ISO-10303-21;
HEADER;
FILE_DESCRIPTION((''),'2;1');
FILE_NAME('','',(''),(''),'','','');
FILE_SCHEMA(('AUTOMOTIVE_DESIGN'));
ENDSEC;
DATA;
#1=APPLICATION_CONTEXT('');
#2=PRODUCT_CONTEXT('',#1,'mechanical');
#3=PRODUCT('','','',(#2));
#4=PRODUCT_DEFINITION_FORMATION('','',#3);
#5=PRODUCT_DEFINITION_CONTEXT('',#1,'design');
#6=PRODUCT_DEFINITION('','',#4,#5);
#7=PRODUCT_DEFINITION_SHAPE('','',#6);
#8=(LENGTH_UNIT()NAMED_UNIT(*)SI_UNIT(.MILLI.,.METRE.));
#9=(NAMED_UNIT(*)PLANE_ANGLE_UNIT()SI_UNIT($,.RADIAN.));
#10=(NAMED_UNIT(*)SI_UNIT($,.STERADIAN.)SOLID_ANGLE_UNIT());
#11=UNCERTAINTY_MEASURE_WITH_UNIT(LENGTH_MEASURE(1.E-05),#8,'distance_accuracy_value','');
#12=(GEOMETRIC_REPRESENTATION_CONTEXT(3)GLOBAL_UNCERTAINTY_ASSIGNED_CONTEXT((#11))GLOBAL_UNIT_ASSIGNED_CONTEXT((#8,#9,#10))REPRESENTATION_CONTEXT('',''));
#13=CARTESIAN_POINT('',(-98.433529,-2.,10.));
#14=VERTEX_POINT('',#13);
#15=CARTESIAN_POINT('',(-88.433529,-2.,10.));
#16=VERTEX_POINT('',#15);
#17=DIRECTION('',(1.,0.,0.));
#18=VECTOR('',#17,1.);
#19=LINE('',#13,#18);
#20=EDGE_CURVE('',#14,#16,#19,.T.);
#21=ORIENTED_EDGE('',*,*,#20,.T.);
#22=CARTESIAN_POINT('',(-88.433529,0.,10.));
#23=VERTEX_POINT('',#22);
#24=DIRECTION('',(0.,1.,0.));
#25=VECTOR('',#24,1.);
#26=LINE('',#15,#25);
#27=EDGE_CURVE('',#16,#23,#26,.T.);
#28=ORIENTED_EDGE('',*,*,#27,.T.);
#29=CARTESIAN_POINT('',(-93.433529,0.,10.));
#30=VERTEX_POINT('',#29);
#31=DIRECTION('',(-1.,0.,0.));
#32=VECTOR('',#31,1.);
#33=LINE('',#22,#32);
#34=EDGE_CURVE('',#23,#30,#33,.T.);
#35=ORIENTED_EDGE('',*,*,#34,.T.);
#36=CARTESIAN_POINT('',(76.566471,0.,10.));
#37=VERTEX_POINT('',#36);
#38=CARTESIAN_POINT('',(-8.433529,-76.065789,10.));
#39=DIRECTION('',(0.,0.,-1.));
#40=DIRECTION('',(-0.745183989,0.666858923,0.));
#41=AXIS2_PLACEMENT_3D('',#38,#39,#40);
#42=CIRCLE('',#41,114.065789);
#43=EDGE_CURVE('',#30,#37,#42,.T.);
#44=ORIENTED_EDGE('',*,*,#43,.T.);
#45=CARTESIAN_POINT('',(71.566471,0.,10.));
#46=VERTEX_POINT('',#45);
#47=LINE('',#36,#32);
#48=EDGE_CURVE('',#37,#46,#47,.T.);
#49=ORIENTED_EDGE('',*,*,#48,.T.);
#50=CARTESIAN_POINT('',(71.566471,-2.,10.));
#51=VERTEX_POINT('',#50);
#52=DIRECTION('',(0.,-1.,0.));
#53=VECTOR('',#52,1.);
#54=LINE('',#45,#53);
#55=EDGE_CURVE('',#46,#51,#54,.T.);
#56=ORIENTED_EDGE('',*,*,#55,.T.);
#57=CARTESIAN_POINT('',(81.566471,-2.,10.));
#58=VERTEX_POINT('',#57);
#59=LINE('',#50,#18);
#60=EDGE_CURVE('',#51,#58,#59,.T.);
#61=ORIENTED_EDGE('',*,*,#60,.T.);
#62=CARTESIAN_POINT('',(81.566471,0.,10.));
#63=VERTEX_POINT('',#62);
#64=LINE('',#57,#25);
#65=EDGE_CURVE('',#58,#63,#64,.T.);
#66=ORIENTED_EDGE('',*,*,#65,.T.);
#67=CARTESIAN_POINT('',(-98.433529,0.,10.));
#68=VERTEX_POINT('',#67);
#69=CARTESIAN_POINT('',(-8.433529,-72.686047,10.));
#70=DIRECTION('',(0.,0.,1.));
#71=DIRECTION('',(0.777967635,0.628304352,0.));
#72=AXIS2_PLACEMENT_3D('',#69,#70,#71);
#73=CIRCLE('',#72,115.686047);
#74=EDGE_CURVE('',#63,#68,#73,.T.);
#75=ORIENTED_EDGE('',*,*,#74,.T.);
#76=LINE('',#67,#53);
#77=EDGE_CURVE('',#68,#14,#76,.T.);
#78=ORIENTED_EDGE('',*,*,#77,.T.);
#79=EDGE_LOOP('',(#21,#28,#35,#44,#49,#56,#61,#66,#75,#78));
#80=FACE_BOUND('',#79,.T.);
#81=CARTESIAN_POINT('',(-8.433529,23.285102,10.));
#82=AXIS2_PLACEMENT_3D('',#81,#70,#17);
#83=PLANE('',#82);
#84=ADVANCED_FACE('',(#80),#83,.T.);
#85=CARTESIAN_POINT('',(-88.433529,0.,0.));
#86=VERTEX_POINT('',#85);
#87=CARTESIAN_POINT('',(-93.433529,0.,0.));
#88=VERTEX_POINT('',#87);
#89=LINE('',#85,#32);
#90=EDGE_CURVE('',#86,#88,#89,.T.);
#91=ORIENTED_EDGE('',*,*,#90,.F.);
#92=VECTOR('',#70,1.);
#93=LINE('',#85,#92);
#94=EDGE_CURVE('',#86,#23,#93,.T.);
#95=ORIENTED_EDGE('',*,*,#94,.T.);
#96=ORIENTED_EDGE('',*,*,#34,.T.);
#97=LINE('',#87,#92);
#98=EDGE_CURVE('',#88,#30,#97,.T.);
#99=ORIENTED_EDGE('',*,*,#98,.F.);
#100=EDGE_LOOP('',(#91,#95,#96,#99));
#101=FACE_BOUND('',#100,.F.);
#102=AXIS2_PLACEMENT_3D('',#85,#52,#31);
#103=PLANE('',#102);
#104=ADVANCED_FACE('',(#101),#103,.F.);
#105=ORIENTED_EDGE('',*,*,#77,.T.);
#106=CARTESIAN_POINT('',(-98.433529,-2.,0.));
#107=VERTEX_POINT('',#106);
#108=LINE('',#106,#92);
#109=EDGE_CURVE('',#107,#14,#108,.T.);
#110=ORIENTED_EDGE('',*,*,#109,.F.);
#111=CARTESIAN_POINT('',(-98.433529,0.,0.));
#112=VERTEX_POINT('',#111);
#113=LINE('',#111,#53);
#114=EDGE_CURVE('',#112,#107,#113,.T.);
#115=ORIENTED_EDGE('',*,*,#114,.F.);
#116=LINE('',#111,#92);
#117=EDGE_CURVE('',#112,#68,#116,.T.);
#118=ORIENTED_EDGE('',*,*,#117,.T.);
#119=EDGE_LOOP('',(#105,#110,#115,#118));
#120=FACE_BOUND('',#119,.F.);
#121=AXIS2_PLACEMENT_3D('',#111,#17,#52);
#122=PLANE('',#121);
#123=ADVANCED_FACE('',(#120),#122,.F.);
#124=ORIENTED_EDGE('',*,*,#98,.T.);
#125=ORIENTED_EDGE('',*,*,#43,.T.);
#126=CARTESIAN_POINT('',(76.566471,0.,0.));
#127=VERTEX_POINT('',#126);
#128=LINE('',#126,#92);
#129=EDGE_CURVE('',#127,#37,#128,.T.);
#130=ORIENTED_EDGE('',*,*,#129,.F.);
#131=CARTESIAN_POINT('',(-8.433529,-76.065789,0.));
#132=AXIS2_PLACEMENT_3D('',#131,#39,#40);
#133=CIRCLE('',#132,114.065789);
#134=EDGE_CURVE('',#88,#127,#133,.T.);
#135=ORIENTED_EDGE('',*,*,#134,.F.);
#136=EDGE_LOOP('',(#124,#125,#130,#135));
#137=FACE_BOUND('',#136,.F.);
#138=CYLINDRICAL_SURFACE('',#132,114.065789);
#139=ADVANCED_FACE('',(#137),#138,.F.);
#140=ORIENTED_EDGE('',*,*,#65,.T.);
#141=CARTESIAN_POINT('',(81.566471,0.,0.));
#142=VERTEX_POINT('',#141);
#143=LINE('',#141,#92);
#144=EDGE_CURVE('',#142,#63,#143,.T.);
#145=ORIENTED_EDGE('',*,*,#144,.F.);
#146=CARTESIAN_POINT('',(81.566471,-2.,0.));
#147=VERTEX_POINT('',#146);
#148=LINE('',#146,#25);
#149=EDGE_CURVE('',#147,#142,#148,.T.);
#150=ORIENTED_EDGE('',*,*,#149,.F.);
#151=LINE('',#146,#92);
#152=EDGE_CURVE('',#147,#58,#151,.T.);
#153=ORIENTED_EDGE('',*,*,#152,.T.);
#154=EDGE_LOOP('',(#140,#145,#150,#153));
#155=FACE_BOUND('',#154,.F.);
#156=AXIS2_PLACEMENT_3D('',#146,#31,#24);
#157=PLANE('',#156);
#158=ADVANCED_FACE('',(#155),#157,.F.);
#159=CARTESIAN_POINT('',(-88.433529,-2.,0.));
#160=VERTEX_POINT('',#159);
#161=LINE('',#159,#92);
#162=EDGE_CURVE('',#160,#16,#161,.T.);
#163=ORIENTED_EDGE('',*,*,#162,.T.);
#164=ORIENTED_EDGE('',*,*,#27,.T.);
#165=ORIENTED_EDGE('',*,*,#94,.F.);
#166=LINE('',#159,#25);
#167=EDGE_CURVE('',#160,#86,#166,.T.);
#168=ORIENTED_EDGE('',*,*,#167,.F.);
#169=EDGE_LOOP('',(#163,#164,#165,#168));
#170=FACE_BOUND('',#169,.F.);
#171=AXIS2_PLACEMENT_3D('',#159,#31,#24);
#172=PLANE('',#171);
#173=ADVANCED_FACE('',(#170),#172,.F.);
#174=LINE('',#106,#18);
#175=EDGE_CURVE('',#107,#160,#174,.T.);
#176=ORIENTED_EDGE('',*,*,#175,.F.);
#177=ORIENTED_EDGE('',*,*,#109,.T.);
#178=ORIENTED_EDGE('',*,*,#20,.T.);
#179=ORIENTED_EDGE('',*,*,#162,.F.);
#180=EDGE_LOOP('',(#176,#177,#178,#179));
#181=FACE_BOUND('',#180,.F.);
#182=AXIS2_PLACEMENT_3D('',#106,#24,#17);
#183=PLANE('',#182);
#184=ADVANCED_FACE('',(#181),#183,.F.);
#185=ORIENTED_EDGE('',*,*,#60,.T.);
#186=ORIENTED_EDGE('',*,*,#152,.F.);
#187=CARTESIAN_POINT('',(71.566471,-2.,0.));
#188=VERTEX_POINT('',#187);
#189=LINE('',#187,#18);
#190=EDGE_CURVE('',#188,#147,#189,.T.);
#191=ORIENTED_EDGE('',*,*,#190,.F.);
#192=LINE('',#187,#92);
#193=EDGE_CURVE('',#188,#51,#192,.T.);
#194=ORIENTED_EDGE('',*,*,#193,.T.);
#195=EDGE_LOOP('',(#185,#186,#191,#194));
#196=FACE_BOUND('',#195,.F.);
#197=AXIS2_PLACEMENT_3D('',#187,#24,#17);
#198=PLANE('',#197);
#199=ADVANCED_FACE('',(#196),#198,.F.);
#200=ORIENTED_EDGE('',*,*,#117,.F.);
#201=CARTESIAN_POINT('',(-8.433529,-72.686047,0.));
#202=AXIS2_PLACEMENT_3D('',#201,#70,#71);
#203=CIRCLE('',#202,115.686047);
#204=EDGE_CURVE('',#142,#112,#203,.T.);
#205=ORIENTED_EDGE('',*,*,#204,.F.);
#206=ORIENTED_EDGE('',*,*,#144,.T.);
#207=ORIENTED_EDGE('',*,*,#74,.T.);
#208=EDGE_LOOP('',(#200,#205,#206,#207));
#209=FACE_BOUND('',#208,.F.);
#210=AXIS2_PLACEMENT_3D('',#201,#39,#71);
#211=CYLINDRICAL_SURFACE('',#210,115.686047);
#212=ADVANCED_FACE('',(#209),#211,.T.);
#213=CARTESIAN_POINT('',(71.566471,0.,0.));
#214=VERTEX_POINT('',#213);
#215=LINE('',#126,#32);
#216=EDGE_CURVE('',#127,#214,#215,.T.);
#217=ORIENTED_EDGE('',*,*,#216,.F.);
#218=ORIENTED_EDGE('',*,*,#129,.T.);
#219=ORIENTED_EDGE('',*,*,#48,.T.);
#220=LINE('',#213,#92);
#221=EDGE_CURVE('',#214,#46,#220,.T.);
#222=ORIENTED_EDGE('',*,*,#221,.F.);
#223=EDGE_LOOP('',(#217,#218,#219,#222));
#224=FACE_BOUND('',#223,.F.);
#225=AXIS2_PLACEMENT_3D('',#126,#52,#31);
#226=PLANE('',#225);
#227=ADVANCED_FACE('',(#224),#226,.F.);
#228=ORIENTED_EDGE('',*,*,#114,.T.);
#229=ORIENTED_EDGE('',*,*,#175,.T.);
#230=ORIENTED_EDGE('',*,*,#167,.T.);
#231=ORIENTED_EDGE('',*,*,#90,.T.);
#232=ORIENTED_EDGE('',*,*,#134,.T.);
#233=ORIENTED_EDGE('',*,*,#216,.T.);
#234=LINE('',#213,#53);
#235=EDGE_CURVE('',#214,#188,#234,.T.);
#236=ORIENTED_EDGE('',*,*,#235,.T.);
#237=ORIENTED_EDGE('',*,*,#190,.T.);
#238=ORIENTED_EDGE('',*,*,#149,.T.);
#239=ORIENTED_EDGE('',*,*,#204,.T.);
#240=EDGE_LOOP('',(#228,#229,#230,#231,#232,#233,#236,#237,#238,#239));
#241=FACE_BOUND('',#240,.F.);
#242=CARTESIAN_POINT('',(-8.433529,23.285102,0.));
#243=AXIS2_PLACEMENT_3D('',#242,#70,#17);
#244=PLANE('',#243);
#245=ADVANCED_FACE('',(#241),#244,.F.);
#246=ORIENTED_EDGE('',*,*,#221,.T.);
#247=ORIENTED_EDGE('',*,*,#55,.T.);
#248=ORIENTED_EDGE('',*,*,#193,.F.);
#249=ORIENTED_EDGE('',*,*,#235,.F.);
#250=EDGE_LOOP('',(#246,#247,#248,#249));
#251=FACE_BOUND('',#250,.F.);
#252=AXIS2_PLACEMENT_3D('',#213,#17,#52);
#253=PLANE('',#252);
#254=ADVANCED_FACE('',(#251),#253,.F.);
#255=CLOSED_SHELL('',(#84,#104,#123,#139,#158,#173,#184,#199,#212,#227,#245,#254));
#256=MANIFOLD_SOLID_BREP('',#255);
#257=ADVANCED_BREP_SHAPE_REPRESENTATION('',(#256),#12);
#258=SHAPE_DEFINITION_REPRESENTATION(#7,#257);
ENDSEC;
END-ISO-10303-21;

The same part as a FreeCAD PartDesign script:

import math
import FreeCAD as App
import Part
import Sketcher
from FreeCAD import Vector
Q = App.Units.Quantity

doc = App.newDocument("Part")
body = doc.addObject("PartDesign::Body", "Body")

# Sketch on XY plane
sketch1 = body.newObject("Sketcher::SketchObject", "Sketch")
sketch1.AttachmentSupport = (doc.getObject("XY_Plane"), [""])
sketch1.MapMode = "FlatFace"
sketch1.addGeometry([
    Part.ArcOfCircle(Part.Circle(Vector(-8.433529, -72.686047, 0), Vector(0, 0, 1), 115.686047), math.radians(38.925131), math.radians(141.074869)),  # 0
    Part.LineSegment(Vector(-98.433529, 0, 0), Vector(-98.433529, -2, 0)),  # 1
    Part.LineSegment(Vector(-98.433529, -2, 0), Vector(-88.433529, -2, 0)),  # 2
    Part.LineSegment(Vector(-88.433529, -2, 0), Vector(-88.433529, 0, 0)),  # 3
    Part.LineSegment(Vector(-88.433529, 0, 0), Vector(-93.433529, 0, 0)),  # 4
    Part.ArcOfCircle(Part.Circle(Vector(-8.433529, -76.065789, 0), Vector(0, 0, 1), 114.065789), math.radians(41.825095), math.radians(138.174905)),  # 5
    Part.LineSegment(Vector(76.566471, 0, 0), Vector(71.566471, 0, 0)),  # 6
    Part.LineSegment(Vector(71.566471, 0, 0), Vector(71.566471, -2, 0)),  # 7
    Part.LineSegment(Vector(71.566471, -2, 0), Vector(81.566471, -2, 0)),  # 8
    Part.LineSegment(Vector(81.566471, -2, 0), Vector(81.566471, 0, 0)),  # 9
], False)
sketch1.addConstraint([
    Sketcher.Constraint("Coincident", 0, 2, 1, 1),
    Sketcher.Constraint("Coincident", 1, 2, 2, 1),
    Sketcher.Constraint("Coincident", 2, 2, 3, 1),
    Sketcher.Constraint("Coincident", 3, 2, 4, 1),
    Sketcher.Constraint("Coincident", 4, 2, 5, 2),
    Sketcher.Constraint("Coincident", 5, 1, 6, 1),
    Sketcher.Constraint("Coincident", 6, 2, 7, 1),
    Sketcher.Constraint("Coincident", 7, 2, 8, 1),
    Sketcher.Constraint("Coincident", 8, 2, 9, 1),
    Sketcher.Constraint("Coincident", 9, 2, 0, 1),
    Sketcher.Constraint("Vertical", 1),
    Sketcher.Constraint("Horizontal", 2),
    Sketcher.Constraint("Vertical", 3),
    Sketcher.Constraint("Horizontal", 4),
    Sketcher.Constraint("Horizontal", 6),
    Sketcher.Constraint("Vertical", 7),
    Sketcher.Constraint("Horizontal", 8),
    Sketcher.Constraint("Vertical", 9),
    Sketcher.Constraint("PointOnObject", 0, 2, -1),
    Sketcher.Constraint("PointOnObject", 3, 2, -1),
    Sketcher.Constraint("PointOnObject", 5, 1, -1),
    Sketcher.Constraint("PointOnObject", 9, 2, -1),
    Sketcher.Constraint("Horizontal", 2, 2, 7, 2),
    Sketcher.Constraint("Vertical", 0, 3, 5, 3),
    Sketcher.Constraint("Equal", 4, 6),
    Sketcher.Constraint("DistanceX", 2, 1, 2, 2, Q("10 mm")),
    Sketcher.Constraint("DistanceX", 4, 2, 4, 1, Q("5 mm")),
    Sketcher.Constraint("DistanceY", 1, 2, 1, 1, Q("2 mm")),
    Sketcher.Constraint("DistanceX", 0, 2, 0, 3, Q("90 mm")),
    Sketcher.Constraint("Radius", 5, Q("114.065789 mm")),
    Sketcher.Constraint("Radius", 0, Q("115.686047 mm")),
    Sketcher.Constraint("DistanceX", 0, 3, -1, 1, Q("8.433529 mm")),
])
pad1 = body.newObject("PartDesign::Pad", "Pad")
pad1.Profile = sketch1
pad1.Length = 10

doc.recompute()
